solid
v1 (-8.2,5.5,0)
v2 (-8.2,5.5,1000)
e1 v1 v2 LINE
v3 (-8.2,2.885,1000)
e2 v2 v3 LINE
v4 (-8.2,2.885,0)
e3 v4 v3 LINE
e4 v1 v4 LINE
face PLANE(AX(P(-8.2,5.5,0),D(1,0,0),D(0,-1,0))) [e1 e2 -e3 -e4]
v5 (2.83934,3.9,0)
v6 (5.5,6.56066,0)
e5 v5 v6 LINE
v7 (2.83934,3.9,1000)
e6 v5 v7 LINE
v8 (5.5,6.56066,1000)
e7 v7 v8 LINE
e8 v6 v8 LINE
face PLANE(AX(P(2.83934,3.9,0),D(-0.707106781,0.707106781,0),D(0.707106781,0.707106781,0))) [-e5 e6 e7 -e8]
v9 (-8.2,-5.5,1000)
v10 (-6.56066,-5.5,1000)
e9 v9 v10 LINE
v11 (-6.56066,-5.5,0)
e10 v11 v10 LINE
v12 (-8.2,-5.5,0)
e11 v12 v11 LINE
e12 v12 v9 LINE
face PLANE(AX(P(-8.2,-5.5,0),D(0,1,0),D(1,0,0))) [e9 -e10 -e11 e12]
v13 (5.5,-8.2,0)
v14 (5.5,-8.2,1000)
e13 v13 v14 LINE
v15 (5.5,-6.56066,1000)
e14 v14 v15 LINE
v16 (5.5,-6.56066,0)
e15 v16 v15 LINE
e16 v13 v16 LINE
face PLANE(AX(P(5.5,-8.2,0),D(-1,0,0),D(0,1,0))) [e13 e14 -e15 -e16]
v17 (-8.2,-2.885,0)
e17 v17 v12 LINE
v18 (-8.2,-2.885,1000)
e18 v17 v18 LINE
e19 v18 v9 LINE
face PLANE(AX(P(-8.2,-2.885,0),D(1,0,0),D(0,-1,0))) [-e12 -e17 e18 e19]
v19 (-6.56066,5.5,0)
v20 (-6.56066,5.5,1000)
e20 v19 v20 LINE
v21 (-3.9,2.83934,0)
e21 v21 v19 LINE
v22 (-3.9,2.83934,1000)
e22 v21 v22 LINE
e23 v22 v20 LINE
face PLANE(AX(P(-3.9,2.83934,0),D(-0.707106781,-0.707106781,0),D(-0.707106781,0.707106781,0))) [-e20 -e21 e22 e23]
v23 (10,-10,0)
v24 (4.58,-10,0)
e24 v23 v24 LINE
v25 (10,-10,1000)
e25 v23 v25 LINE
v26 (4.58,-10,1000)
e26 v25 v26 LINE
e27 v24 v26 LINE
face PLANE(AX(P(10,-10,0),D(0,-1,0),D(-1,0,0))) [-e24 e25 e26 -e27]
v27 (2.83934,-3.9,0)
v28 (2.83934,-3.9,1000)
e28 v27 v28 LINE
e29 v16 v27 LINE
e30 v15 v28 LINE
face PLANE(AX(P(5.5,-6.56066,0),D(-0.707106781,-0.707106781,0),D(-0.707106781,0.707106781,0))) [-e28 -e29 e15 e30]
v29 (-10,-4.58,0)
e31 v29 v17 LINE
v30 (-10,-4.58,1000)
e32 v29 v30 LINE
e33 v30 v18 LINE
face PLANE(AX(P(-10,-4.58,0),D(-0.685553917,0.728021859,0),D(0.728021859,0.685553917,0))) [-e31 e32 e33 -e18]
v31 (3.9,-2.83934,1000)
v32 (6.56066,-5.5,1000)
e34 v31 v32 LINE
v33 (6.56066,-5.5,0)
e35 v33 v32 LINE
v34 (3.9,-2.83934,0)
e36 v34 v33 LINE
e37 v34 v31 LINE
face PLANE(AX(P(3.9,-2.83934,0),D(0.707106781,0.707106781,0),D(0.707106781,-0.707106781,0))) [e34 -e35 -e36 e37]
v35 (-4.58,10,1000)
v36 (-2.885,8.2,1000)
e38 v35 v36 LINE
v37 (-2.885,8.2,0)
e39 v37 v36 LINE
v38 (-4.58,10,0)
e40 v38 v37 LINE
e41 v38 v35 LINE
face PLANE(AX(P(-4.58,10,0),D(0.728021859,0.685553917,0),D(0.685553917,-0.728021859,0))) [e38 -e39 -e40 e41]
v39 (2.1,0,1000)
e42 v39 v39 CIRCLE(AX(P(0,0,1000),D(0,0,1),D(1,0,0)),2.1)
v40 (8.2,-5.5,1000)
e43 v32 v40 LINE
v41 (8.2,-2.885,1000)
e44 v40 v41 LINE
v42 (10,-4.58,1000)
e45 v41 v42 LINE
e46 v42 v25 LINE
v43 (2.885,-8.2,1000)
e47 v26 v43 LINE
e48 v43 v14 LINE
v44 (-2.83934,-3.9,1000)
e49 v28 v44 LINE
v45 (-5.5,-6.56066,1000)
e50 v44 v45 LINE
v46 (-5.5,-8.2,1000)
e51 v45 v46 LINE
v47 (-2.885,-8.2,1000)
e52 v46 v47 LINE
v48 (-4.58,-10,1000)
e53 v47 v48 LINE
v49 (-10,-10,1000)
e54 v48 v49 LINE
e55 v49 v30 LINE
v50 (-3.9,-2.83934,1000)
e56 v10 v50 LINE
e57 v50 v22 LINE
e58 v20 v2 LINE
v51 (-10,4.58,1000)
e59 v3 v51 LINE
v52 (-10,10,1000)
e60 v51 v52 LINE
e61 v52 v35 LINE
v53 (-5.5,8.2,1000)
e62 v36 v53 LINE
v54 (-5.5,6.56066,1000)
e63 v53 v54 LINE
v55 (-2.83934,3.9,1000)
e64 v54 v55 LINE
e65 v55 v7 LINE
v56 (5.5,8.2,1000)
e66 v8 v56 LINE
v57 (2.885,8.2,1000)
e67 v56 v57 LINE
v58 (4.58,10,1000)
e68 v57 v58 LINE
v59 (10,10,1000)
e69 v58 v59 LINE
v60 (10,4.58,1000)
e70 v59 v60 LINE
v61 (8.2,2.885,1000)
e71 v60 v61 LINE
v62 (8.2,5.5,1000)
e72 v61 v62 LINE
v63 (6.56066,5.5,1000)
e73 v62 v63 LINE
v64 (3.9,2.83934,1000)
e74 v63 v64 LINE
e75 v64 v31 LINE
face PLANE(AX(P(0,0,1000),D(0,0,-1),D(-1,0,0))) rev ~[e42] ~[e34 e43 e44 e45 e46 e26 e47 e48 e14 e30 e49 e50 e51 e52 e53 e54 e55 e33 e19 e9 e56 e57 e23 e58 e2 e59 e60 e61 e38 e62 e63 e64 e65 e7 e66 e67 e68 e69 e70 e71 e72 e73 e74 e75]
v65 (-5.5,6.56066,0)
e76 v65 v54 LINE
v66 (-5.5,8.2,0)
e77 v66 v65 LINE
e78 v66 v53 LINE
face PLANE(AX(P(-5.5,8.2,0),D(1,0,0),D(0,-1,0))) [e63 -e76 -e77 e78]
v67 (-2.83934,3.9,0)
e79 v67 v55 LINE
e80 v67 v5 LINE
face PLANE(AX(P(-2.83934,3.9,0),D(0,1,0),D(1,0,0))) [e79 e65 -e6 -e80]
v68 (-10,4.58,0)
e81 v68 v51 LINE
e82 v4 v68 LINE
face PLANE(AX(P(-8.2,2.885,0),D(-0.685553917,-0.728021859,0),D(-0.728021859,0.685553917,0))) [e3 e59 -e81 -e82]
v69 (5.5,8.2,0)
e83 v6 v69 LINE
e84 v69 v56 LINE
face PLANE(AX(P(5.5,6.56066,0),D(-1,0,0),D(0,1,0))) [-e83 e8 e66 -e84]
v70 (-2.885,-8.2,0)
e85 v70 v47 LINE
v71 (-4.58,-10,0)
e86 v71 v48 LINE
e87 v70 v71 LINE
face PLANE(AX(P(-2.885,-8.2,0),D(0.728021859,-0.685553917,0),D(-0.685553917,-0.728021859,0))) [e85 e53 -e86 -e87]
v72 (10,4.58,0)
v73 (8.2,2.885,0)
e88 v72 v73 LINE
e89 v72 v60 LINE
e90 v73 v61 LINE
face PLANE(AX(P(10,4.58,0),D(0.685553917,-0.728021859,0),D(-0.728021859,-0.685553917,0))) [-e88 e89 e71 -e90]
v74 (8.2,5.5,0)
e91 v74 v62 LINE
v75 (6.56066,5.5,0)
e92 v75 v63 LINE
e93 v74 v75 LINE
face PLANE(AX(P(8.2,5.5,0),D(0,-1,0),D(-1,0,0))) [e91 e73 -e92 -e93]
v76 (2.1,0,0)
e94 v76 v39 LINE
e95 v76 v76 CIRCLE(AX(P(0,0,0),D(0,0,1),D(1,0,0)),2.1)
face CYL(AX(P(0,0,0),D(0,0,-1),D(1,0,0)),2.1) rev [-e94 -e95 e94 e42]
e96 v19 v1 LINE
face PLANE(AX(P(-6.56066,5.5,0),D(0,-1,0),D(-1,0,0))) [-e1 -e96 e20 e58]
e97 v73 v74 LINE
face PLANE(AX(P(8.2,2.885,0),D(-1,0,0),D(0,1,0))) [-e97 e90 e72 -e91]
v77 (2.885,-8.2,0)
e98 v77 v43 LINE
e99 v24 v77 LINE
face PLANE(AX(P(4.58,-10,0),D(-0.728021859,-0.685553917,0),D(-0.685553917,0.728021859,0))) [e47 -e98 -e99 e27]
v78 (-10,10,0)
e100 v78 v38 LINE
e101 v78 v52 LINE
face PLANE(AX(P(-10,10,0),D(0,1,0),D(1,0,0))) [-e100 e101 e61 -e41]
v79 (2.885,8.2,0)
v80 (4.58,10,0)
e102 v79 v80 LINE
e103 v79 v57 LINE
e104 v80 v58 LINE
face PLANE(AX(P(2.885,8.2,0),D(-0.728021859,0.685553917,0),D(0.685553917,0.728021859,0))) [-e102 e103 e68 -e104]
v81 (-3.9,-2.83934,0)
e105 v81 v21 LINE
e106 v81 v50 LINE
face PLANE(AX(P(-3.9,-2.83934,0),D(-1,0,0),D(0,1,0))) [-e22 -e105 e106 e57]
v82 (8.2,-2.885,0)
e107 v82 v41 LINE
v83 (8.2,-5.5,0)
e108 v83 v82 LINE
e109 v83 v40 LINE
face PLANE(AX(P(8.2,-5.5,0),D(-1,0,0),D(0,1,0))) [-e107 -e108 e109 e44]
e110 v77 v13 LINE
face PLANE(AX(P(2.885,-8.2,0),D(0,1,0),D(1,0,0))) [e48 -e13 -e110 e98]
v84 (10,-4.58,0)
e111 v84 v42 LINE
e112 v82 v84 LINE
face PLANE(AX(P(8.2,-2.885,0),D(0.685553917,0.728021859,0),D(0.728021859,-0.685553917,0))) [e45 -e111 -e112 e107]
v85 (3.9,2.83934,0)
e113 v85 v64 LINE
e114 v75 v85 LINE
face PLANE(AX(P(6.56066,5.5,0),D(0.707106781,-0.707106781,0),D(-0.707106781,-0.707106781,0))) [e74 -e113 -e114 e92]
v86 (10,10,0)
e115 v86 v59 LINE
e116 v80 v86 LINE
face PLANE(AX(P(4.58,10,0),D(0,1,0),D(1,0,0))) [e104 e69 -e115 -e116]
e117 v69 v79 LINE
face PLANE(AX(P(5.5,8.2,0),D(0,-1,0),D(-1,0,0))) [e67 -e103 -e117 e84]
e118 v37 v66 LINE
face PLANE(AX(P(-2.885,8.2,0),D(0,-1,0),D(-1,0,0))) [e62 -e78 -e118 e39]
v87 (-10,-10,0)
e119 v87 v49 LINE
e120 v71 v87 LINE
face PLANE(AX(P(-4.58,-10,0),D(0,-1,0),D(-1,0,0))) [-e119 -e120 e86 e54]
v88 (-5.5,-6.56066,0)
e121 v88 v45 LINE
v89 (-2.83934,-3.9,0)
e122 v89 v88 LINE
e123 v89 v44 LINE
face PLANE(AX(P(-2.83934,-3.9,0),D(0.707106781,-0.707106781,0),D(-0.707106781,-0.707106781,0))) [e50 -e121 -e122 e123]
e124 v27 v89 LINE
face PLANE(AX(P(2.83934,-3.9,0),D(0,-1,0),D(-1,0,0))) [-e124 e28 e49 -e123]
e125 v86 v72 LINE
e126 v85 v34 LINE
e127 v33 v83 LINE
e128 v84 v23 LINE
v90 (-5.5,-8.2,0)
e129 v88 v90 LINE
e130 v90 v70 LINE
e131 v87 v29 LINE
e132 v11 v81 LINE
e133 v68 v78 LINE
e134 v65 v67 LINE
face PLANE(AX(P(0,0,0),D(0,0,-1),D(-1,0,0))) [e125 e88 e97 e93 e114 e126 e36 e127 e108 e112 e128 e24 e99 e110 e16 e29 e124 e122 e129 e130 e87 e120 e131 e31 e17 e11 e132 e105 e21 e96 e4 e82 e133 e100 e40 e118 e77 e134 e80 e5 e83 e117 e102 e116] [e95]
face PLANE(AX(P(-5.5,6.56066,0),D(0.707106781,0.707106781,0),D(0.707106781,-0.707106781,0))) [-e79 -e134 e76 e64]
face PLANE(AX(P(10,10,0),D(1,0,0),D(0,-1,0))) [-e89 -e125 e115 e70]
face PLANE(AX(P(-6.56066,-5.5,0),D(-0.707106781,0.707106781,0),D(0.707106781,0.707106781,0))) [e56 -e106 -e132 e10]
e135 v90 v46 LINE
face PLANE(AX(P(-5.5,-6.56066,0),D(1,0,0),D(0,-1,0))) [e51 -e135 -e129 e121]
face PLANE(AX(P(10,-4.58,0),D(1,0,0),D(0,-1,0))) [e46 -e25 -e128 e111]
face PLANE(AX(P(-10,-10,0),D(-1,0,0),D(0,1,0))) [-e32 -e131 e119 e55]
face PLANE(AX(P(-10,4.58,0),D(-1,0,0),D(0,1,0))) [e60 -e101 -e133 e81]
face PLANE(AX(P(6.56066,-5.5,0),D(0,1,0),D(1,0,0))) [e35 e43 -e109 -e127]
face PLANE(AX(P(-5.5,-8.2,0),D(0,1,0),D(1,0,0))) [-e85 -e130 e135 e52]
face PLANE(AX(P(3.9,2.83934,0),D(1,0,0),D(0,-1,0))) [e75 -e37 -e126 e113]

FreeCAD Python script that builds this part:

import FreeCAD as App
import Part
import Sketcher

V = App.Vector


def add_polygon(sketch, points):
    """Adds a closed chain of lines whose ends are joined by coincident constraints."""
    first, n = sketch.GeometryCount, len(points)
    for a, b in zip(points, points[1:] + points[:1]):
        sketch.addGeometry(Part.LineSegment(App.Vector(*a, 0), App.Vector(*b, 0)), False)
    for i in range(n):
        sketch.addConstraint(Sketcher.Constraint("Coincident", first + i, 2, first + (i + 1) % n, 1))

doc = App.newDocument("Part")
params = doc.addObject("Spreadsheet::Sheet", "Params")
for row, (alias, value) in enumerate([
    ("sketch1_diameter", "4.2 mm"),
    ("sketch1_width", "5.42 mm"),
    ("pad1_length", "1000 mm"),
], start=1):
    params.set(f"A{row}", alias)
    params.set(f"B{row}", "=" + value)
    params.setAlias(f"B{row}", alias)

body = doc.addObject("PartDesign::Body", "Body")

# Sketch on XY plane
sketch1 = doc.addObject("Sketcher::SketchObject", "Sketch")
body.addObject(sketch1)
sketch1.AttachmentSupport = (doc.XY_Plane, [""])
sketch1.MapMode = "FlatFace"
add_polygon(sketch1, [(-2.885, 8.2), (-4.58, 10), (-10, 10), (-10, 4.58), (-8.2, 2.885), (-8.2, 5.5), (-6.56066, 5.5), (-3.9, 2.83934), (-3.9, -2.83934), (-6.56066, -5.5), (-8.2, -5.5), (-8.2, -2.885), (-10, -4.58), (-10, -10), (-4.58, -10), (-2.885, -8.2), (-5.5, -8.2), (-5.5, -6.56066), (-2.83934, -3.9), (2.83934, -3.9), (5.5, -6.56066), (5.5, -8.2), (2.885, -8.2), (4.58, -10), (10, -10), (10, -4.58), (8.2, -2.885), (8.2, -5.5), (6.56066, -5.5), (3.9, -2.83934), (3.9, 2.83934), (6.56066, 5.5), (8.2, 5.5), (8.2, 2.885), (10, 4.58), (10, 10), (4.58, 10), (2.885, 8.2), (5.5, 8.2), (5.5, 6.56066), (2.83934, 3.9), (-2.83934, 3.9), (-5.5, 6.56066), (-5.5, 8.2)])  # lines 0-43
sketch1.addGeometry(Part.Circle(V(0, 0, 0), V(0, 0, 1), 2.1), False)  # 44
sketch1.addConstraint([
    Sketcher.Constraint("Horizontal", 1),
    Sketcher.Constraint("Vertical", 2),
    Sketcher.Constraint("Vertical", 4),
    Sketcher.Constraint("Horizontal", 5),
    Sketcher.Constraint("Vertical", 7),
    Sketcher.Constraint("Horizontal", 9),
    Sketcher.Constraint("Vertical", 10),
    Sketcher.Constraint("Vertical", 12),
    Sketcher.Constraint("Horizontal", 13),
    Sketcher.Constraint("Horizontal", 15),
    Sketcher.Constraint("Vertical", 16),
    Sketcher.Constraint("Horizontal", 18),
    Sketcher.Constraint("Vertical", 20),
    Sketcher.Constraint("Horizontal", 21),
    Sketcher.Constraint("Horizontal", 23),
    Sketcher.Constraint("Vertical", 24),
    Sketcher.Constraint("Vertical", 26),
    Sketcher.Constraint("Horizontal", 27),
    Sketcher.Constraint("Vertical", 29),
    Sketcher.Constraint("Horizontal", 31),
    Sketcher.Constraint("Vertical", 32),
    Sketcher.Constraint("Vertical", 34),
    Sketcher.Constraint("Horizontal", 35),
    Sketcher.Constraint("Horizontal", 37),
    Sketcher.Constraint("Vertical", 38),
    Sketcher.Constraint("Horizontal", 40),
    Sketcher.Constraint("Vertical", 42),
    Sketcher.Constraint("Horizontal", 43),
    Sketcher.Constraint("Coincident", 44, 3, -1, 1),
    Sketcher.Constraint("Symmetric", 0, 2, 22, 2, -1, 1),
    Sketcher.Constraint("Symmetric", 2, 2, 24, 2, -1, 1),
    Sketcher.Constraint("Symmetric", 3, 2, 25, 2, -1, 1),
    Sketcher.Constraint("Symmetric", 5, 2, 27, 2, -1, 1),
    Sketcher.Constraint("Symmetric", 6, 2, 28, 2, -1, 1),
    Sketcher.Constraint("Symmetric", 8, 2, 30, 2, -1, 1),
    Sketcher.Constraint("Symmetric", 10, 2, 32, 2, -1, 1),
    Sketcher.Constraint("Symmetric", 11, 2, 33, 2, -1, 1),
    Sketcher.Constraint("Symmetric", 13, 2, 35, 2, -1, 1),
    Sketcher.Constraint("Symmetric", 14, 2, 36, 2, -1, 1),
    Sketcher.Constraint("Symmetric", 16, 2, 38, 2, -1, 1),
    Sketcher.Constraint("Symmetric", 17, 2, 39, 2, -1, 1),
    Sketcher.Constraint("Symmetric", 19, 2, 41, 2, -1, 1),
    Sketcher.Constraint("Symmetric", 21, 2, 43, 2, -1, 1),
    Sketcher.Constraint("Symmetric", 16, 2, 19, 2, -2),
    Sketcher.Constraint("Symmetric", 14, 2, 21, 2, -2),
    Sketcher.Constraint("Symmetric", 13, 2, 22, 2, -2),
    Sketcher.Constraint("Symmetric", 11, 2, 24, 2, -2),
    Sketcher.Constraint("Symmetric", 10, 2, 25, 2, -2),
    Sketcher.Constraint("Symmetric", 8, 2, 27, 2, -2),
    Sketcher.Constraint("Perpendicular", 6, 8),
    Sketcher.Constraint("Perpendicular", 0, 11),
    Sketcher.Constraint("Parallel", 8, 17),
    Sketcher.Constraint("Perpendicular", 17, 19),
    Sketcher.Constraint("Perpendicular", 28, 30),
    Sketcher.Constraint("Perpendicular", 39, 41),
    Sketcher.Constraint("Horizontal", 7, 2, 28, 2),
    Sketcher.Constraint("Equal", 35, 2),
    Sketcher.Constraint("Equal", 43, 4),
    Sketcher.Constraint("Equal", 40, 7),
    Sketcher.Constraint("Equal", 31, 16),
    Sketcher.Constraint("Equal", 0, 3),
    Sketcher.Constraint("Equal", 8, 17),
    Sketcher.Constraint("Diameter", 44, 4.2),
    Sketcher.Constraint("DistanceY", -1, 1, 0, 2, 10.0),
    Sketcher.Constraint("DistanceX", 1, 2, 1, 1, 5.42),
    Sketcher.Constraint("DistanceX", 3, 2, -1, 1, 8.2),
    Sketcher.Constraint("DistanceY", -1, 1, 4, 2, 5.5),
    Sketcher.Constraint("DistanceX", 6, 2, -1, 1, 3.9),
    Sketcher.Constraint("DistanceX", 15, 2, 15, 1, 2.615),
    Sketcher.Constraint("DistanceX", 5, 1, 5, 2, 1.63934),
])
sketch1.setExpression("Constraints[106]", "Params.sketch1_diameter")
sketch1.setExpression("Constraints[108]", "Params.sketch1_width")
pad1 = doc.addObject("PartDesign::Pad", "Pad")
body.addObject(pad1)
pad1.Profile = sketch1
pad1.setExpression("Length", "Params.pad1_length")

doc.recompute()
